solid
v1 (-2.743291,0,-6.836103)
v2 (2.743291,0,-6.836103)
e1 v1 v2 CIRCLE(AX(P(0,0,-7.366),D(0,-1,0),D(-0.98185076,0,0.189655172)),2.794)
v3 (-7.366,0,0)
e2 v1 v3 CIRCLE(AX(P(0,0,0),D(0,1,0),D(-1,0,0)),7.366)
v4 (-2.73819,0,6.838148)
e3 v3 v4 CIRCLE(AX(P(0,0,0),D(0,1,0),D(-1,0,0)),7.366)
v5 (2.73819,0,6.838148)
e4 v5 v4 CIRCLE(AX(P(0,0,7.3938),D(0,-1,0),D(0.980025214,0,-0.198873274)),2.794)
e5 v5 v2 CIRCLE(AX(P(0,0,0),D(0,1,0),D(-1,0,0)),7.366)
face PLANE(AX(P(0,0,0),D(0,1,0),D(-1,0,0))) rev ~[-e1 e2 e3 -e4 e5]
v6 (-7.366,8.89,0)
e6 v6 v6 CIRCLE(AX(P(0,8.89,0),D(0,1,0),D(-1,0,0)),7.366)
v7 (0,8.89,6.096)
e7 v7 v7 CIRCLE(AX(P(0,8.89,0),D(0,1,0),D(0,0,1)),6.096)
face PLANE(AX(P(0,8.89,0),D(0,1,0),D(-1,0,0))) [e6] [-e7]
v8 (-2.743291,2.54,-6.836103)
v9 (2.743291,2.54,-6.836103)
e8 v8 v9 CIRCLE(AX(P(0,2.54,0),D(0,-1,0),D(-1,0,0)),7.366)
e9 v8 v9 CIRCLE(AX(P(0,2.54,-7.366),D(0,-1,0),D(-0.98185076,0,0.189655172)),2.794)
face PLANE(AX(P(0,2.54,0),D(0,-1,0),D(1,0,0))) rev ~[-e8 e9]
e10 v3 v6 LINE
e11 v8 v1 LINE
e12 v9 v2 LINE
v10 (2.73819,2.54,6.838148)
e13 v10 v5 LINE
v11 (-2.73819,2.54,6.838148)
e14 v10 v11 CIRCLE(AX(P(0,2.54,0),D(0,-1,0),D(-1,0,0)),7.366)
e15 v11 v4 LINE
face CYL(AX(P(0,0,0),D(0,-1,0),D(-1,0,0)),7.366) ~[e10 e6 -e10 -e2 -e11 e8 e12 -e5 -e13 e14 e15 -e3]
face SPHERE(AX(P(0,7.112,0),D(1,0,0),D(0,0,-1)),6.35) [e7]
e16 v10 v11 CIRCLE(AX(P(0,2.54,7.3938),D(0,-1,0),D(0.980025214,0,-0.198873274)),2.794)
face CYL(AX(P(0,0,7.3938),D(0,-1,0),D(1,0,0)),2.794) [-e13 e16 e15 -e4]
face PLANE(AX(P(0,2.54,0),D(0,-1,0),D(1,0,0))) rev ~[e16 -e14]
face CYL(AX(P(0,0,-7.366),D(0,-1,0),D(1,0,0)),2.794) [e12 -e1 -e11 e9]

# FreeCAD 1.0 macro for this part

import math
import FreeCAD as App
import Part
import Sketcher
Q = App.Units.Quantity

doc = App.newDocument("Part")
body = doc.addObject("PartDesign::Body", "Body")

# Sketch on XZ plane
sketch1 = doc.addObject("Sketcher::SketchObject", "Sketch")
body.addObject(sketch1)
sketch1.AttachmentSupport = (doc.XZ_Plane, [""])
sketch1.MapMode = "FlatFace"
sketch1.addGeometry(Part.Circle(App.Vector(0, 0, 0), App.Vector(0, 0, 1), 7.366), False)
sketch1.addConstraint([
    Sketcher.Constraint("Coincident", 0, 3, -1, 1),
    Sketcher.Constraint("Diameter", 0, Q("0.58 in")),
])
pad1 = doc.addObject("PartDesign::Pad", "Pad")
body.addObject(pad1)
pad1.Profile = sketch1
pad1.Length = Q("0.35 in")
pad1.Reversed = True

# Sketch on XZ plane
sketch2 = doc.addObject("Sketcher::SketchObject", "Sketch001")
body.addObject(sketch2)
sketch2.AttachmentSupport = (doc.XZ_Plane, [""])
sketch2.MapMode = "FlatFace"
sketch2.AttachmentOffset = App.Placement(App.Vector(0, 0, -0.28 * 25.4), App.Rotation())
sketch2.addGeometry([
    Part.LineSegment(App.Vector(6.35, 0, 0), App.Vector(-6.35, 0, 0)),
    Part.ArcOfCircle(Part.Circle(App.Vector(0, 0, 0), App.Vector(0, 0, 1), 6.35), math.radians(180), math.radians(360)),
], False)
sketch2.addConstraint([
    Sketcher.Constraint("Coincident", 0, 1, 1, 2),
    Sketcher.Constraint("Coincident", 1, 1, 0, 2),
    Sketcher.Constraint("Horizontal", 0),
    Sketcher.Constraint("Coincident", 1, 3, -1, 1),
    Sketcher.Constraint("PointOnObject", 0, 1, -1),
    Sketcher.Constraint("Radius", 1, Q("0.25 in")),
])
revolution = doc.addObject("PartDesign::Revolution", "Revolution")
body.addObject(revolution)
revolution.Profile = sketch2
revolution.ReferenceAxis = (sketch2, ["H_Axis"])
revolution.Angle = 360

# Sketch on XZ plane
sketch3 = doc.addObject("Sketcher::SketchObject", "Sketch002")
body.addObject(sketch3)
sketch3.AttachmentSupport = (doc.XZ_Plane, [""])
sketch3.MapMode = "FlatFace"
sketch3.addGeometry([
    Part.Circle(App.Vector(0, 7.3938, 0), App.Vector(0, 0, 1), 2.794),
    Part.Circle(App.Vector(0, -7.366, 0), App.Vector(0, 0, 1), 2.794),
], False)
sketch3.addConstraint([
    Sketcher.Constraint("Equal", 0, 1),
    Sketcher.Constraint("PointOnObject", 0, 3, -2),
    Sketcher.Constraint("PointOnObject", 1, 3, -2),
    Sketcher.Constraint("Diameter", 0, Q("0.22 in")),
    Sketcher.Constraint("DistanceY", 1, 3, -1, 1, Q("0.29 in")),
    Sketcher.Constraint("DistanceY", -1, 1, 0, 3, Q("0.2911 in")),
])
pad2 = doc.addObject("PartDesign::Pad", "Pad001")
body.addObject(pad2)
pad2.Profile = sketch3
pad2.Length = Q("0.1 in")
pad2.Reversed = True

doc.recompute()
